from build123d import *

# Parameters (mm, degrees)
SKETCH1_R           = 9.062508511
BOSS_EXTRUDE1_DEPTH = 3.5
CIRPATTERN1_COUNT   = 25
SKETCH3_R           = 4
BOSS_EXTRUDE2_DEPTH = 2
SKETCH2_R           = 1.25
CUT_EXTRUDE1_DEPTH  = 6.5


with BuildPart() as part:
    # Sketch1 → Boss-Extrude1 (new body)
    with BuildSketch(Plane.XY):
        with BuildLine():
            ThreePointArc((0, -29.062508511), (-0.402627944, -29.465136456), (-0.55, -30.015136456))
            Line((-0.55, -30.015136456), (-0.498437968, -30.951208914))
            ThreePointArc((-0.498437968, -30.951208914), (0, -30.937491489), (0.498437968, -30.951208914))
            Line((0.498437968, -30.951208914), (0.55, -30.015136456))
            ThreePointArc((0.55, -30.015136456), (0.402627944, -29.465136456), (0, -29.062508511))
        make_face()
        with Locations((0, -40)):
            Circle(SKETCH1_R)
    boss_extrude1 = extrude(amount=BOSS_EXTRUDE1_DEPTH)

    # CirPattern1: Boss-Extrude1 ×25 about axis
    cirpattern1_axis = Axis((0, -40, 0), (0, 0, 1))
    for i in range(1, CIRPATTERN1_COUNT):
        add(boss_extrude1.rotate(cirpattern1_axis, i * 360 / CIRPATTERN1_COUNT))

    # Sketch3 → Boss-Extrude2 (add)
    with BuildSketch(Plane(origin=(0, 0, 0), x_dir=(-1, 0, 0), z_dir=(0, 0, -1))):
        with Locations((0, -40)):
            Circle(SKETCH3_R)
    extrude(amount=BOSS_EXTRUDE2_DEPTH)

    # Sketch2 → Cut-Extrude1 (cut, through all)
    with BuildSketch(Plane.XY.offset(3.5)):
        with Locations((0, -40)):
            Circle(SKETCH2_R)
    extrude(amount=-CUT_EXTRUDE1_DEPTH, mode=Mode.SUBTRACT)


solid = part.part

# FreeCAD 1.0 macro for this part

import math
import FreeCAD as App
import Part
import Sketcher
from FreeCAD import Vector
Q = App.Units.Quantity

doc = App.newDocument("Part")
body = doc.addObject("PartDesign::Body", "Body")

sketch1 = body.newObject("Sketcher::SketchObject", "Sketch")
sketch1.AttachmentSupport = (doc.getObject("XY_Plane"), [""])
sketch1.MapMode = "FlatFace"
sketch1.addGeometry([
    Part.ArcOfCircle(Part.Circle(Vector(0.6, -30, 0), Vector(0, 0, 1), 1.1), math.radians(120), math.radians(180)),
    Part.LineSegment(Vector(-0.6, -30, 0), Vector(-0.5, -31, 0)),
    Part.ArcOfCircle(Part.Circle(Vector(0, -40, 0), Vector(0, 0, 1), 9.1), math.radians(93), math.radians(447)),
    Part.LineSegment(Vector(0.5, -31, 0), Vector(0.6, -30, 0)),
    Part.ArcOfCircle(Part.Circle(Vector(-0.6, -30, 0), Vector(0, 0, 1), 1.1), math.radians(0), math.radians(60)),
], False)
sketch1.addConstraint([
    Sketcher.Constraint("Coincident", 0, 2, 1, 1),
    Sketcher.Constraint("Coincident", 1, 2, 2, 1),
    Sketcher.Constraint("Coincident", 2, 2, 3, 1),
    Sketcher.Constraint("Coincident", 3, 2, 4, 1),
    Sketcher.Constraint("Coincident", 4, 2, 0, 1),
    Sketcher.Constraint("Coincident", 0, 2, 4, 3),
    Sketcher.Constraint("Coincident", 3, 2, 0, 3),
    Sketcher.Constraint("Symmetric", 0, 3, 4, 3, -2),
    Sketcher.Constraint("Symmetric", 1, 2, 2, 2, -2),
    Sketcher.Constraint("Radius", 0, Q("1.1 mm")),
    Sketcher.Constraint("DistanceY", 2, 3, -1, 1, Q("40 mm")),
    Sketcher.Constraint("Radius", 2, Q("9.062509 mm")),
    Sketcher.Constraint("DistanceY", 1, 2, 4, 2, Q("1.8887 mm")),
    Sketcher.Constraint("Distance", 1, Q("0.937491 mm")),
])
pad1 = body.newObject("PartDesign::Pad", "Pad")
pad1.Profile = sketch1
pad1.Length = 3.5
doc.recompute()

datumline = body.newObject("PartDesign::Line", "DatumLine")
datumline.Placement = App.Placement(Vector(0, -40, 0), App.Rotation(Vector(0, 0, 1), Vector(0, 0, 1)))
polarpattern = body.newObject("PartDesign::PolarPattern", "PolarPattern")
polarpattern.Originals = [pad1]
polarpattern.Axis = (datumline, [""])
polarpattern.Angle = 360
polarpattern.Occurrences = 25
body.Tip = polarpattern

sketch2 = body.newObject("Sketcher::SketchObject", "Sketch001")
sketch2.AttachmentSupport = (doc.getObject("XY_Plane"), [""])
sketch2.MapMode = "FlatFace"
sketch2.addGeometry(Part.Circle(Vector(0, -40, 0), Vector(0, 0, 1), 4), False)
sketch2.addConstraint([
    Sketcher.Constraint("PointOnObject", 0, 3, -2),
    Sketcher.Constraint("Diameter", 0, Q("8 mm")),
    Sketcher.Constraint("DistanceY", 0, 3, -1, 1, Q("40 mm")),
])
pad2 = body.newObject("PartDesign::Pad", "Pad001")
pad2.Profile = sketch2
pad2.Length = 2
pad2.Reversed = True

sketch3 = body.newObject("Sketcher::SketchObject", "Sketch002")
sketch3.AttachmentSupport = (doc.getObject("XY_Plane"), [""])
sketch3.MapMode = "FlatFace"
sketch3.AttachmentOffset = App.Placement(Vector(0, 0, 3.5), App.Rotation())
sketch3.addGeometry(Part.Circle(Vector(0, -40, 0), Vector(0, 0, 1), 1.2), False)
sketch3.addConstraint([
    Sketcher.Constraint("PointOnObject", 0, 3, -2),
    Sketcher.Constraint("Diameter", 0, Q("2.5 mm")),
    Sketcher.Constraint("DistanceY", 0, 3, -1, 1, Q("40 mm")),
])
pocket1 = body.newObject("PartDesign::Pocket", "Pocket")
pocket1.Profile = sketch3
pocket1.Type = "ThroughAll"

doc.recompute()
